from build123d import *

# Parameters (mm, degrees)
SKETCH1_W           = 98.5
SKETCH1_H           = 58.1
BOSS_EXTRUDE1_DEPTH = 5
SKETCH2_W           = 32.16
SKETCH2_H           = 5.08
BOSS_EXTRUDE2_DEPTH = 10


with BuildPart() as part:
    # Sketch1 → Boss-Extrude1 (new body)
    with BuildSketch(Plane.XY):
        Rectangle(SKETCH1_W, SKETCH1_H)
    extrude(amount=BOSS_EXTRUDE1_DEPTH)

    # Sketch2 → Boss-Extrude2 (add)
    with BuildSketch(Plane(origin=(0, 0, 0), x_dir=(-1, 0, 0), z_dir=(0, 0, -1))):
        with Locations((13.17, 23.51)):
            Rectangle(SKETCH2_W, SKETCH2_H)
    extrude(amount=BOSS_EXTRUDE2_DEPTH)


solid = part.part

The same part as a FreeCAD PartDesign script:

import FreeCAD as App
import Part
import Sketcher
from FreeCAD import Vector
Q = App.Units.Quantity

doc = App.newDocument("Part")
params = doc.addObject("Spreadsheet::Sheet", "Params")
for row, (alias, value) in enumerate([
    ("sketch1_width", "98.5 mm"),
    ("sketch1_height", "58.1 mm"),
    ("pad1_length", "5 mm"),
    ("sketch2_width", "32.16 mm"),
    ("sketch2_height", "5.08 mm"),
    ("pad2_length", "10 mm"),
], start=1):
    params.set(f"A{row}", alias)
    params.set(f"B{row}", "=" + value)
    params.setAlias(f"B{row}", alias)

body = doc.addObject("PartDesign::Body", "Body")

# Sketch on XY plane
sketch1 = doc.addObject("Sketcher::SketchObject", "Sketch")
body.addObject(sketch1)
sketch1.AttachmentSupport = (doc.XY_Plane, [""])
sketch1.MapMode = "FlatFace"
sketch1.addGeometry(Part.LineSegment(Vector(-49, 29, 0), Vector(-49, -29, 0)), False)
sketch1.addGeometry(Part.LineSegment(Vector(-49, -29, 0), Vector(49, -29, 0)), False)
sketch1.addGeometry(Part.LineSegment(Vector(49, -29, 0), Vector(49, 29, 0)), False)
sketch1.addGeometry(Part.LineSegment(Vector(49, 29, 0), Vector(-49, 29, 0)), False)
sketch1.addConstraint(Sketcher.Constraint("Coincident", 0, 2, 1, 1))
sketch1.addConstraint(Sketcher.Constraint("Coincident", 1, 2, 2, 1))
sketch1.addConstraint(Sketcher.Constraint("Coincident", 2, 2, 3, 1))
sketch1.addConstraint(Sketcher.Constraint("Coincident", 3, 2, 0, 1))
sketch1.addConstraint(Sketcher.Constraint("Vertical", 0))
sketch1.addConstraint(Sketcher.Constraint("Horizontal", 1))
sketch1.addConstraint(Sketcher.Constraint("Vertical", 2))
sketch1.addConstraint(Sketcher.Constraint("Horizontal", 3))
sketch1.addConstraint(Sketcher.Constraint("Symmetric", 0, 2, 2, 2, -1, 1))
sketch1.addConstraint(Sketcher.Constraint("DistanceX", 1, 1, 1, 2, Q("98.5 mm")))
sketch1.addConstraint(Sketcher.Constraint("DistanceY", 0, 2, 0, 1, Q("58.1 mm")))
sketch1.setExpression("Constraints[9]", "Params.sketch1_width")
sketch1.setExpression("Constraints[10]", "Params.sketch1_height")
pad1 = doc.addObject("PartDesign::Pad", "Pad")
body.addObject(pad1)
pad1.Profile = sketch1
pad1.setExpression("Length", "Params.pad1_length")

# Sketch on XY plane
sketch2 = doc.addObject("Sketcher::SketchObject", "Sketch001")
body.addObject(sketch2)
sketch2.AttachmentSupport = (doc.XY_Plane, [""])
sketch2.MapMode = "FlatFace"
sketch2.addGeometry(Part.LineSegment(Vector(3, 26, 0), Vector(3, 21, 0)), False)
sketch2.addGeometry(Part.LineSegment(Vector(3, 21, 0), Vector(-29, 21, 0)), False)
sketch2.addGeometry(Part.LineSegment(Vector(-29, 21, 0), Vector(-29, 26, 0)), False)
sketch2.addGeometry(Part.LineSegment(Vector(-29, 26, 0), Vector(3, 26, 0)), False)
sketch2.addConstraint(Sketcher.Constraint("Coincident", 0, 2, 1, 1))
sketch2.addConstraint(Sketcher.Constraint("Coincident", 1, 2, 2, 1))
sketch2.addConstraint(Sketcher.Constraint("Coincident", 2, 2, 3, 1))
sketch2.addConstraint(Sketcher.Constraint("Coincident", 3, 2, 0, 1))
sketch2.addConstraint(Sketcher.Constraint("Vertical", 0))
sketch2.addConstraint(Sketcher.Constraint("Horizontal", 1))
sketch2.addConstraint(Sketcher.Constraint("Vertical", 2))
sketch2.addConstraint(Sketcher.Constraint("Horizontal", 3))
sketch2.addConstraint(Sketcher.Constraint("DistanceX", 1, 2, 1, 1, Q("32.16 mm")))
sketch2.addConstraint(Sketcher.Constraint("DistanceY", 0, 2, 0, 1, Q("5.08 mm")))
sketch2.addConstraint(Sketcher.Constraint("DistanceX", -1, 1, 0, 2, Q("2.91 mm")))
sketch2.addConstraint(Sketcher.Constraint("DistanceY", -1, 1, 0, 2, Q("20.97 mm")))
sketch2.setExpression("Constraints[8]", "Params.sketch2_width")
sketch2.setExpression("Constraints[9]", "Params.sketch2_height")
pad2 = doc.addObject("PartDesign::Pad", "Pad001")
body.addObject(pad2)
pad2.Profile = sketch2
pad2.setExpression("Length", "Params.pad2_length")
pad2.Reversed = True

doc.recompute()
